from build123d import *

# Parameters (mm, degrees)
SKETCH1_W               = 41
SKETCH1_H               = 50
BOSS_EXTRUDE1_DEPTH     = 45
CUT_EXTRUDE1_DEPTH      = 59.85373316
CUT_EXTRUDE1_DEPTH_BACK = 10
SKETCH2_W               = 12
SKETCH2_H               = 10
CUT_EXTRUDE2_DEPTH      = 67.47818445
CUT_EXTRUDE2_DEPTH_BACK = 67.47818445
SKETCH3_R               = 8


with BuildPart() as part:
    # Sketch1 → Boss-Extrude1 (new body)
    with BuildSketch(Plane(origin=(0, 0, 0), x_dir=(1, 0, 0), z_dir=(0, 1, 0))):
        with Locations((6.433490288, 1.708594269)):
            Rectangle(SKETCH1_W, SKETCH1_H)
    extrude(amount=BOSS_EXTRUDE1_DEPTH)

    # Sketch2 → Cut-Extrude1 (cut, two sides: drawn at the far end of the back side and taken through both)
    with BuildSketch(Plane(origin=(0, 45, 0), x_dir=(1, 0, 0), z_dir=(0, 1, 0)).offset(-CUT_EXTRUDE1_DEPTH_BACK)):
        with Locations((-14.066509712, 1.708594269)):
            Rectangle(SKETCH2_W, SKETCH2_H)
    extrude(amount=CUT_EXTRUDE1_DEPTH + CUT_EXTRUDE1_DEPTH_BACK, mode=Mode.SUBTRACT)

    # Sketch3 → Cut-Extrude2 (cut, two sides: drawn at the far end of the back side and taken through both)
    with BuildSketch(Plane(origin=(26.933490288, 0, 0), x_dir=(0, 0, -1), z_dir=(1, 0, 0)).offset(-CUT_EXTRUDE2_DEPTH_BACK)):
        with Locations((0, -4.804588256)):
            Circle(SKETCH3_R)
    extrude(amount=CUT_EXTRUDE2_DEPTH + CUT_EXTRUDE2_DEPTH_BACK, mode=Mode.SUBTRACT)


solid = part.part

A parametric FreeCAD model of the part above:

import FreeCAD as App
import Part
import Sketcher
from FreeCAD import Vector
Q = App.Units.Quantity


def add_polygon(sketch, points):
    """Adds a closed chain of lines whose ends are joined by coincident constraints."""
    first, n = sketch.GeometryCount, len(points)
    for a, b in zip(points, points[1:] + points[:1]):
        sketch.addGeometry(Part.LineSegment(App.Vector(*a, 0), App.Vector(*b, 0)), False)
    for i in range(n):
        sketch.addConstraint(Sketcher.Constraint("Coincident", first + i, 2, first + (i + 1) % n, 1))

doc = App.newDocument("Part")
body = doc.addObject("PartDesign::Body", "Body")

sketch1 = doc.addObject("Sketcher::SketchObject", "Sketch")
body.addObject(sketch1)
sketch1.AttachmentSupport = (doc.XZ_Plane, [""])
sketch1.MapMode = "FlatFace"
add_polygon(sketch1, [(-14, -27), (-14, 23), (27, 23), (27, -27)])
sketch1.addConstraint([
    Sketcher.Constraint("Vertical", 0),
    Sketcher.Constraint("Horizontal", 1),
    Sketcher.Constraint("Vertical", 2),
    Sketcher.Constraint("Horizontal", 3),
    Sketcher.Constraint("DistanceX", 1, 1, 1, 2, Q("41 mm")),
    Sketcher.Constraint("DistanceY", 0, 1, 0, 2, Q("50 mm")),
    Sketcher.Constraint("DistanceX", 0, 2, -1, 1, Q("14.06651 mm")),
    Sketcher.Constraint("DistanceY", -1, 1, 0, 2, Q("23.291406 mm")),
])
pad1 = doc.addObject("PartDesign::Pad", "Pad")
body.addObject(pad1)
pad1.Profile = sketch1
pad1.Length = 45
pad1.Reversed = True

sketch2 = doc.addObject("Sketcher::SketchObject", "Sketch001")
body.addObject(sketch2)
sketch2.AttachmentSupport = (doc.XZ_Plane, [""])
sketch2.MapMode = "FlatFace"
sketch2.AttachmentOffset = App.Placement(Vector(0, 0, -45), App.Rotation())
add_polygon(sketch2, [(-20, -7), (-20, 3), (-8, 3), (-8, -7)])
sketch2.addConstraint([
    Sketcher.Constraint("Vertical", 0),
    Sketcher.Constraint("Horizontal", 1),
    Sketcher.Constraint("Vertical", 2),
    Sketcher.Constraint("Horizontal", 3),
    Sketcher.Constraint("DistanceX", 1, 1, 1, 2, Q("12 mm")),
    Sketcher.Constraint("DistanceY", 0, 1, 0, 2, Q("10 mm")),
    Sketcher.Constraint("DistanceX", 0, 2, -1, 1, Q("20.06651 mm")),
    Sketcher.Constraint("DistanceY", -1, 1, 0, 2, Q("3.291406 mm")),
])
pocket1 = doc.addObject("PartDesign::Pocket", "Pocket")
body.addObject(pocket1)
pocket1.Profile = sketch2
pocket1.Type = "TwoLengths"
pocket1.Length = 59.853733
pocket1.Length2 = 10

sketch3 = doc.addObject("Sketcher::SketchObject", "Sketch002")
body.addObject(sketch3)
sketch3.AttachmentSupport = (doc.YZ_Plane, [""])
sketch3.MapMode = "FlatFace"
sketch3.AttachmentOffset = App.Placement(Vector(0, 0, 26.93349), App.Rotation())
sketch3.addGeometry(Part.Circle(Vector(-5, 0, 0), Vector(0, 0, 1), 8), False)
sketch3.addConstraint([
    Sketcher.Constraint("PointOnObject", 0, 3, -1),
    Sketcher.Constraint("Diameter", 0, Q("16 mm")),
    Sketcher.Constraint("DistanceX", 0, 3, -1, 1, Q("4.804588 mm")),
])
pocket2 = doc.addObject("PartDesign::Pocket", "Pocket001")
body.addObject(pocket2)
pocket2.Profile = sketch3
pocket2.Type = "ThroughAll"
pocket2.Midplane = True

doc.recompute()
